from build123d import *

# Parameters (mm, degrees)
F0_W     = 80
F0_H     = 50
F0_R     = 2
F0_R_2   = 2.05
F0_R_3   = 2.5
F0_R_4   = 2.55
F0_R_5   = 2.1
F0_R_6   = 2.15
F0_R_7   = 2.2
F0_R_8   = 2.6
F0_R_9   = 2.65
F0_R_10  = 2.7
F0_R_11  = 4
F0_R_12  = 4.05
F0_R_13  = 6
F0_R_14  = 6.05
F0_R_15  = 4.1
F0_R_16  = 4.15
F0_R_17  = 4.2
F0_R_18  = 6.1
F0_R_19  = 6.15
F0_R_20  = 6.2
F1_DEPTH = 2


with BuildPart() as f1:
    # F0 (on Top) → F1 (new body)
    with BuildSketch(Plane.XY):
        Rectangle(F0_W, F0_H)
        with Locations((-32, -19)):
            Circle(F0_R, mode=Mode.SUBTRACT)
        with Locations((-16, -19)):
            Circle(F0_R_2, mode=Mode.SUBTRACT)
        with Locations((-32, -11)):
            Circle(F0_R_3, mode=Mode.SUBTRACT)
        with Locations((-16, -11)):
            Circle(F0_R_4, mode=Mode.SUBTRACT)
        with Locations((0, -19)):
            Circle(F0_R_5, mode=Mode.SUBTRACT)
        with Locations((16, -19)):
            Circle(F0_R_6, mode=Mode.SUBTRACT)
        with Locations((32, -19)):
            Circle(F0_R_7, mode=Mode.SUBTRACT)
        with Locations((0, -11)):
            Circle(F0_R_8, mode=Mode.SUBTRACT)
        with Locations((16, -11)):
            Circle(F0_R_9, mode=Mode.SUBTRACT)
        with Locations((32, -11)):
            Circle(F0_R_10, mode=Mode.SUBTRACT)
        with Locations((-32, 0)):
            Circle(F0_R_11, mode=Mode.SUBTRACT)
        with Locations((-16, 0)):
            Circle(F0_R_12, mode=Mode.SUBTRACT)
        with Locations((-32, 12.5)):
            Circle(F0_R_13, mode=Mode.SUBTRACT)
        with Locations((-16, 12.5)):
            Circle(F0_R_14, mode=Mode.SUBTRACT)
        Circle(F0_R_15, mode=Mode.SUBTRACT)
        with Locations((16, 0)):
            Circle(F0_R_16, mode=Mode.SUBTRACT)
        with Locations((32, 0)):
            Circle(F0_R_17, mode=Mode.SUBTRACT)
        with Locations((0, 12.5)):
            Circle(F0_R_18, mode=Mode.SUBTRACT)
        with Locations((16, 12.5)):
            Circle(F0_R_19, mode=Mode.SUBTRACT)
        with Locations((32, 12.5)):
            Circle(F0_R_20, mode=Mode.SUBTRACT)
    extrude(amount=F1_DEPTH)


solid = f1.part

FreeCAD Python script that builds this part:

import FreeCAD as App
import Part
import Sketcher
from FreeCAD import Vector


def add_polygon(sketch, points):
    """Adds a closed chain of lines whose ends are joined by coincident constraints."""
    first, n = sketch.GeometryCount, len(points)
    for a, b in zip(points, points[1:] + points[:1]):
        sketch.addGeometry(Part.LineSegment(App.Vector(*a, 0), App.Vector(*b, 0)), False)
    for i in range(n):
        sketch.addConstraint(Sketcher.Constraint("Coincident", first + i, 2, first + (i + 1) % n, 1))

doc = App.newDocument("Part")
body = doc.addObject("PartDesign::Body", "Body")

# Sketch on XY plane
sketch1 = body.newObject("Sketcher::SketchObject", "Sketch")
sketch1.AttachmentSupport = (doc.getObject("XY_Plane"), [""])
sketch1.MapMode = "FlatFace"
add_polygon(sketch1, [(-40, 25), (-40, -25), (40, -25), (40, 25)])  # lines 0-3
sketch1.addGeometry(Part.Circle(Vector(-32, -19, 0), Vector(0, 0, 1), 2), False)  # 4
sketch1.addGeometry(Part.Circle(Vector(-16, -19, 0), Vector(0, 0, 1), 2), False)  # 5
sketch1.addGeometry(Part.Circle(Vector(0, -19, 0), Vector(0, 0, 1), 2.1), False)  # 6
sketch1.addGeometry(Part.Circle(Vector(-32, -11, 0), Vector(0, 0, 1), 2.5), False)  # 7
sketch1.addGeometry(Part.Circle(Vector(-16, -11, 0), Vector(0, 0, 1), 2.5), False)  # 8
sketch1.addGeometry(Part.Circle(Vector(0, -11, 0), Vector(0, 0, 1), 2.6), False)  # 9
sketch1.addGeometry(Part.Circle(Vector(16, -19, 0), Vector(0, 0, 1), 2.1), False)  # 10
sketch1.addGeometry(Part.Circle(Vector(32, -19, 0), Vector(0, 0, 1), 2.2), False)  # 11
sketch1.addGeometry(Part.Circle(Vector(16, -11, 0), Vector(0, 0, 1), 2.6), False)  # 12
sketch1.addGeometry(Part.Circle(Vector(32, -11, 0), Vector(0, 0, 1), 2.7), False)  # 13
sketch1.addGeometry(Part.Circle(Vector(-32, 0, 0), Vector(0, 0, 1), 4), False)  # 14
sketch1.addGeometry(Part.Circle(Vector(-16, 0, 0), Vector(0, 0, 1), 4), False)  # 15
sketch1.addGeometry(Part.Circle(Vector(0, 0, 0), Vector(0, 0, 1), 4.1), False)  # 16
sketch1.addGeometry(Part.Circle(Vector(-32, 12.5, 0), Vector(0, 0, 1), 6), False)  # 17
sketch1.addGeometry(Part.Circle(Vector(-16, 12.5, 0), Vector(0, 0, 1), 6), False)  # 18
sketch1.addGeometry(Part.Circle(Vector(0, 12.5, 0), Vector(0, 0, 1), 6.1), False)  # 19
sketch1.addGeometry(Part.Circle(Vector(16, 0, 0), Vector(0, 0, 1), 4.2), False)  # 20
sketch1.addGeometry(Part.Circle(Vector(32, 0, 0), Vector(0, 0, 1), 4.2), False)  # 21
sketch1.addGeometry(Part.Circle(Vector(16, 12.5, 0), Vector(0, 0, 1), 6.2), False)  # 22
sketch1.addGeometry(Part.Circle(Vector(32, 12.5, 0), Vector(0, 0, 1), 6.2), False)  # 23
sketch1.addConstraint(Sketcher.Constraint("Vertical", 0))
sketch1.addConstraint(Sketcher.Constraint("Horizontal", 1))
sketch1.addConstraint(Sketcher.Constraint("Vertical", 2))
sketch1.addConstraint(Sketcher.Constraint("Horizontal", 3))
sketch1.addConstraint(Sketcher.Constraint("Coincident", 16, 3, -1, 1))
sketch1.addConstraint(Sketcher.Constraint("Symmetric", 15, 3, 20, 3, -1, 1))
sketch1.addConstraint(Sketcher.Constraint("Symmetric", 14, 3, 21, 3, -1, 1))
sketch1.addConstraint(Sketcher.Constraint("Symmetric", 0, 2, 2, 2, -1, 1))
sketch1.addConstraint(Sketcher.Constraint("Symmetric", 5, 3, 10, 3, -2))
sketch1.addConstraint(Sketcher.Constraint("Symmetric", 4, 3, 11, 3, -2))
sketch1.addConstraint(Sketcher.Constraint("Symmetric", 8, 3, 12, 3, -2))
sketch1.addConstraint(Sketcher.Constraint("Symmetric", 7, 3, 13, 3, -2))
sketch1.addConstraint(Sketcher.Constraint("Symmetric", 18, 3, 22, 3, -2))
sketch1.addConstraint(Sketcher.Constraint("Symmetric", 17, 3, 23, 3, -2))
sketch1.addConstraint(Sketcher.Constraint("PointOnObject", 6, 3, -2))
sketch1.addConstraint(Sketcher.Constraint("PointOnObject", 9, 3, -2))
sketch1.addConstraint(Sketcher.Constraint("PointOnObject", 14, 3, -1))
sketch1.addConstraint(Sketcher.Constraint("PointOnObject", 15, 3, -1))
sketch1.addConstraint(Sketcher.Constraint("PointOnObject", 19, 3, -2))
sketch1.addConstraint(Sketcher.Constraint("Horizontal", 4, 3, 5, 3))
sketch1.addConstraint(Sketcher.Constraint("Horizontal", 5, 3, 6, 3))
sketch1.addConstraint(Sketcher.Constraint("Horizontal", 7, 3, 8, 3))
sketch1.addConstraint(Sketcher.Constraint("Horizontal", 8, 3, 9, 3))
sketch1.addConstraint(Sketcher.Constraint("Horizontal", 17, 3, 18, 3))
sketch1.addConstraint(Sketcher.Constraint("Horizontal", 18, 3, 19, 3))
sketch1.addConstraint(Sketcher.Constraint("Vertical", 4, 3, 7, 3))
sketch1.addConstraint(Sketcher.Constraint("Vertical", 5, 3, 8, 3))
sketch1.addConstraint(Sketcher.Constraint("Vertical", 7, 3, 14, 3))
sketch1.addConstraint(Sketcher.Constraint("Vertical", 8, 3, 15, 3))
sketch1.addConstraint(Sketcher.Constraint("Vertical", 14, 3, 17, 3))
sketch1.addConstraint(Sketcher.Constraint("Vertical", 15, 3, 18, 3))
sketch1.addConstraint(Sketcher.Constraint("Diameter", 4, 4.0))
sketch1.addConstraint(Sketcher.Constraint("Diameter", 7, 5.0))
sketch1.addConstraint(Sketcher.Constraint("Diameter", 14, 8.0))
sketch1.addConstraint(Sketcher.Constraint("Diameter", 17, 12.0))
sketch1.addConstraint(Sketcher.Constraint("Diameter", 5, 4.1))
sketch1.addConstraint(Sketcher.Constraint("Diameter", 6, 4.2))
sketch1.addConstraint(Sketcher.Constraint("Diameter", 8, 5.1))
sketch1.addConstraint(Sketcher.Constraint("Diameter", 9, 5.2))
sketch1.addConstraint(Sketcher.Constraint("Diameter", 10, 4.3))
sketch1.addConstraint(Sketcher.Constraint("Diameter", 11, 4.4))
sketch1.addConstraint(Sketcher.Constraint("Diameter", 12, 5.3))
sketch1.addConstraint(Sketcher.Constraint("Diameter", 13, 5.4))
sketch1.addConstraint(Sketcher.Constraint("Diameter", 15, 8.1))
sketch1.addConstraint(Sketcher.Constraint("Diameter", 16, 8.2))
sketch1.addConstraint(Sketcher.Constraint("Diameter", 18, 12.1))
sketch1.addConstraint(Sketcher.Constraint("Diameter", 19, 12.2))
sketch1.addConstraint(Sketcher.Constraint("Diameter", 20, 8.3))
sketch1.addConstraint(Sketcher.Constraint("Diameter", 21, 8.4))
sketch1.addConstraint(Sketcher.Constraint("Diameter", 22, 12.3))
sketch1.addConstraint(Sketcher.Constraint("Diameter", 23, 12.4))
sketch1.addConstraint(Sketcher.Constraint("DistanceX", 1, 1, 1, 2, 80.0))
sketch1.addConstraint(Sketcher.Constraint("DistanceY", 0, 2, 0, 1, 50.0))
sketch1.addConstraint(Sketcher.Constraint("DistanceX", 4, 3, -1, 1, 32.0))
sketch1.addConstraint(Sketcher.Constraint("DistanceY", 4, 3, -1, 1, 19.0))
sketch1.addConstraint(Sketcher.Constraint("DistanceX", 5, 3, -1, 1, 16.0))
sketch1.addConstraint(Sketcher.Constraint("DistanceY", 7, 3, -1, 1, 11.0))
sketch1.addConstraint(Sketcher.Constraint("DistanceY", -1, 1, 17, 3, 12.5))
pad1 = body.newObject("PartDesign::Pad", "Pad")
pad1.Profile = sketch1
pad1.Length = 2

doc.recompute()
